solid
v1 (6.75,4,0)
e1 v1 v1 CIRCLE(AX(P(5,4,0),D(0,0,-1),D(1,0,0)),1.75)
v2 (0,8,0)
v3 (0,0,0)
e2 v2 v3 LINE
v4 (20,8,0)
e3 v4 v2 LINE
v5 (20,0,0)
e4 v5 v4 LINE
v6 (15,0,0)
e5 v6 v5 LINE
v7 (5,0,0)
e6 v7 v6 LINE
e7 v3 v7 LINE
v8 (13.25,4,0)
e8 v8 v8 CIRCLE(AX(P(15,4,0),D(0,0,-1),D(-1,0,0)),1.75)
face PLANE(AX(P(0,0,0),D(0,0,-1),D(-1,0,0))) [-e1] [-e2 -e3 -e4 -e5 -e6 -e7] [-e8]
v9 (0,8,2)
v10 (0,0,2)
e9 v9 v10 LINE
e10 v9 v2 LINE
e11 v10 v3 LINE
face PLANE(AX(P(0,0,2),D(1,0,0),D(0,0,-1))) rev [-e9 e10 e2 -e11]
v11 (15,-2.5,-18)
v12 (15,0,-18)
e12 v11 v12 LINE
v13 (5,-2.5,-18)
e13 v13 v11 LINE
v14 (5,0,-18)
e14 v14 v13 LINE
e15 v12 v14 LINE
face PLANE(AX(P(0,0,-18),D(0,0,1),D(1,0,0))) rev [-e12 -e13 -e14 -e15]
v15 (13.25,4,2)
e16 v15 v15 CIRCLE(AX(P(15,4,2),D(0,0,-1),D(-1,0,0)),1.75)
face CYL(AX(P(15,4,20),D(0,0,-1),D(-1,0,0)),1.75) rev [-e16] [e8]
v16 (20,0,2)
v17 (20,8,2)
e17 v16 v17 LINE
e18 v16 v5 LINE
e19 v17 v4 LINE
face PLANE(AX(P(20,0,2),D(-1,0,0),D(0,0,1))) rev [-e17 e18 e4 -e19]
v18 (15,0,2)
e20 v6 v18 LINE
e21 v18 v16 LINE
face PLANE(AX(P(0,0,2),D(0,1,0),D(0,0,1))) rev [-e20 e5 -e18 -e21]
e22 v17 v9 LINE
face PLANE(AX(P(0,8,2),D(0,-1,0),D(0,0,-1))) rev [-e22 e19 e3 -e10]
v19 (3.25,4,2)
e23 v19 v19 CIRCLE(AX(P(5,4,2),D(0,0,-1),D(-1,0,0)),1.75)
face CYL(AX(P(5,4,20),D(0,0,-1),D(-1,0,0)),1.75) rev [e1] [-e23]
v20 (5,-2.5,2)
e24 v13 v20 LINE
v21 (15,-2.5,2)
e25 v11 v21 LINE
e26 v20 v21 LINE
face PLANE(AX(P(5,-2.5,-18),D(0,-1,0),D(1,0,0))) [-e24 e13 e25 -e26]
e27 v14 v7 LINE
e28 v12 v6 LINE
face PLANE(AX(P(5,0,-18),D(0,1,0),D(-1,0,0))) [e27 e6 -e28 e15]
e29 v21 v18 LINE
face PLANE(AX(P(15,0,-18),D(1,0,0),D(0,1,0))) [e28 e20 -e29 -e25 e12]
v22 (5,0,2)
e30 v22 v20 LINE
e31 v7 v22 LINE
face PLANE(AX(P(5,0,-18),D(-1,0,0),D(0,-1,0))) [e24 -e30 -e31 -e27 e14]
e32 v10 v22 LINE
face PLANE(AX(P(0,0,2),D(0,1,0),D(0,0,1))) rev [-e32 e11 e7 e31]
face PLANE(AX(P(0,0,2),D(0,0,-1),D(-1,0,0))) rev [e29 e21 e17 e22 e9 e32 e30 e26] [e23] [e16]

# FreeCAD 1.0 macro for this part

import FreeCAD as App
import Part
import Sketcher

V = App.Vector
Q = App.Units.Quantity

doc = App.newDocument("Part")
body = doc.addObject("PartDesign::Body", "Body")

# Sketch on XY plane
sketch1 = doc.addObject("Sketcher::SketchObject", "Sketch")
body.addObject(sketch1)
sketch1.AttachmentSupport = (doc.XY_Plane, [""])
sketch1.MapMode = "FlatFace"
sketch1.addGeometry([
    Part.LineSegment(V(0, 8, 0), V(0, 0, 0)),
    Part.LineSegment(V(0, 0, 0), V(20, 0, 0)),
    Part.LineSegment(V(20, 0, 0), V(20, 8, 0)),
    Part.LineSegment(V(20, 8, 0), V(0, 8, 0)),
], False)
sketch1.addConstraint([
    Sketcher.Constraint("Coincident", 0, 2, 1, 1),
    Sketcher.Constraint("Coincident", 1, 2, 2, 1),
    Sketcher.Constraint("Coincident", 2, 2, 3, 1),
    Sketcher.Constraint("Coincident", 3, 2, 0, 1),
    Sketcher.Constraint("Vertical", 0),
    Sketcher.Constraint("Horizontal", 1),
    Sketcher.Constraint("Vertical", 2),
    Sketcher.Constraint("Horizontal", 3),
    Sketcher.Constraint("Coincident", 0, 2, -1, 1),
    Sketcher.Constraint("DistanceX", 1, 1, 1, 2, Q("20 mm")),
    Sketcher.Constraint("DistanceY", 0, 2, 0, 1, Q("8 mm")),
])
pad1 = doc.addObject("PartDesign::Pad", "Pad")
body.addObject(pad1)
pad1.Profile = sketch1
pad1.Length = 2

# Sketch on XY plane
sketch2 = doc.addObject("Sketcher::SketchObject", "Sketch001")
body.addObject(sketch2)
sketch2.AttachmentSupport = (doc.XY_Plane, [""])
sketch2.MapMode = "FlatFace"
sketch2.AttachmentOffset = App.Placement(V(0, 0, 2), App.Rotation())
sketch2.addGeometry([
    Part.LineSegment(V(5, 0, 0), V(5, -2.5, 0)),
    Part.LineSegment(V(5, -2.5, 0), V(15, -2.5, 0)),
    Part.LineSegment(V(15, -2.5, 0), V(15, 0, 0)),
    Part.LineSegment(V(15, 0, 0), V(5, 0, 0)),
], False)
sketch2.addConstraint([
    Sketcher.Constraint("Coincident", 0, 2, 1, 1),
    Sketcher.Constraint("Coincident", 1, 2, 2, 1),
    Sketcher.Constraint("Coincident", 2, 2, 3, 1),
    Sketcher.Constraint("Coincident", 3, 2, 0, 1),
    Sketcher.Constraint("Vertical", 0),
    Sketcher.Constraint("Horizontal", 1),
    Sketcher.Constraint("Vertical", 2),
    Sketcher.Constraint("Horizontal", 3),
    Sketcher.Constraint("PointOnObject", 2, 2, -1),
    Sketcher.Constraint("DistanceX", 1, 1, 1, 2, Q("10 mm")),
    Sketcher.Constraint("DistanceY", 0, 2, 0, 1, Q("2.5 mm")),
    Sketcher.Constraint("DistanceX", -1, 1, 0, 2, Q("5 mm")),
])
pad2 = doc.addObject("PartDesign::Pad", "Pad001")
body.addObject(pad2)
pad2.Profile = sketch2
pad2.Length = 20
pad2.Reversed = True

# Sketch on XY plane
sketch3 = doc.addObject("Sketcher::SketchObject", "Sketch002")
body.addObject(sketch3)
sketch3.AttachmentSupport = (doc.XY_Plane, [""])
sketch3.MapMode = "FlatFace"
sketch3.addGeometry([
    Part.Circle(V(15, 4, 0), V(0, 0, 1), 1.8),
    Part.Circle(V(5, 4, 0), V(0, 0, 1), 1.8),
], False)
sketch3.addConstraint([
    Sketcher.Constraint("Equal", 0, 1),
    Sketcher.Constraint("Horizontal", 0, 3, 1, 3),
    Sketcher.Constraint("Diameter", 0, Q("3.5 mm")),
    Sketcher.Constraint("DistanceX", -1, 1, 0, 3, Q("15 mm")),
    Sketcher.Constraint("DistanceY", -1, 1, 0, 3, Q("4 mm")),
    Sketcher.Constraint("DistanceX", -1, 1, 1, 3, Q("5 mm")),
])
pocket1 = doc.addObject("PartDesign::Pocket", "Pocket")
body.addObject(pocket1)
pocket1.Profile = sketch3
pocket1.Length = 20
pocket1.Reversed = True

doc.recompute()
